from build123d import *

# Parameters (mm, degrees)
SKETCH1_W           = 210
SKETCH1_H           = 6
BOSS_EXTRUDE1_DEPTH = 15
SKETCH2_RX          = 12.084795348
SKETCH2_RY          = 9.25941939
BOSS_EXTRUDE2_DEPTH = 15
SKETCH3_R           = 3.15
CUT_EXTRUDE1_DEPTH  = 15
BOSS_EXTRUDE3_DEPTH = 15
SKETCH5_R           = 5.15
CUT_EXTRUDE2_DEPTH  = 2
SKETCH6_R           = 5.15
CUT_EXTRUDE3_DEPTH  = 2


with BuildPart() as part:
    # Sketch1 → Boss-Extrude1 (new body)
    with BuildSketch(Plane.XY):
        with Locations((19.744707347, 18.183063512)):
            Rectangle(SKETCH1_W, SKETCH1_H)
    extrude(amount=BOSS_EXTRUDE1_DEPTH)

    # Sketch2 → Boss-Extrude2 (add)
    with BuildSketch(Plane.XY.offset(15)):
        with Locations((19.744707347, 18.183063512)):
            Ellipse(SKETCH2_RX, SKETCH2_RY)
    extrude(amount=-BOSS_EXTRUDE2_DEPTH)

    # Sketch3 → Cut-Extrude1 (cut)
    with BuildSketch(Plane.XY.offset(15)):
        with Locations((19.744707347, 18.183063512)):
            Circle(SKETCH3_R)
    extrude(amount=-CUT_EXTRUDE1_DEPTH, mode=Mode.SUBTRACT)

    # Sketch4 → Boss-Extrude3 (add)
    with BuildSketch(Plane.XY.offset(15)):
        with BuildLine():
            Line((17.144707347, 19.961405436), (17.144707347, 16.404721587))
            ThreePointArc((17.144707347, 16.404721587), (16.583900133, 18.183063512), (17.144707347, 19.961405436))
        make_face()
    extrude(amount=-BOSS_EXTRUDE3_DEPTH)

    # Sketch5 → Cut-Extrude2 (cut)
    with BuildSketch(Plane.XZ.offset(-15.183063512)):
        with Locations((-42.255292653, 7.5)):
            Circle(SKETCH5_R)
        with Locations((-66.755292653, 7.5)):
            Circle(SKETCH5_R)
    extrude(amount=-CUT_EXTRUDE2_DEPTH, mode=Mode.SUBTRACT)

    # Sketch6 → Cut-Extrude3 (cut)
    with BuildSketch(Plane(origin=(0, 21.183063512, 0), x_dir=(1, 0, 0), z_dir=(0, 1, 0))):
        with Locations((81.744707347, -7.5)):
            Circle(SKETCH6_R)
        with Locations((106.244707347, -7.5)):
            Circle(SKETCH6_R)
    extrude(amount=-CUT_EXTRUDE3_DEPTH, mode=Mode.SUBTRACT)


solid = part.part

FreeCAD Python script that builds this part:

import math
import FreeCAD as App
import Part
import Sketcher
Q = App.Units.Quantity


def add_polygon(sketch, points):
    """Adds a closed chain of lines whose ends are joined by coincident constraints."""
    first, n = sketch.GeometryCount, len(points)
    for a, b in zip(points, points[1:] + points[:1]):
        sketch.addGeometry(Part.LineSegment(App.Vector(*a, 0), App.Vector(*b, 0)), False)
    for i in range(n):
        sketch.addConstraint(Sketcher.Constraint("Coincident", first + i, 2, first + (i + 1) % n, 1))

doc = App.newDocument("Part")
params = doc.addObject("Spreadsheet::Sheet", "Params")
for row, (alias, value) in enumerate([
    ("sketch1_width", "210 mm"),
    ("sketch1_height", "6 mm"),
    ("pad1_length", "15 mm"),
    ("pad2_length", "15 mm"),
    ("sketch3_diameter", "6.3 mm"),
    ("pocket1_length", "15 mm"),
    ("sketch4_radius", "3.1 mm"),
    ("pad3_length", "15 mm"),
    ("sketch5_diameter", "10.3 mm"),
    ("pocket2_length", "2 mm"),
    ("sketch6_diameter", "10.3 mm"),
    ("pocket3_length", "2 mm"),
], start=1):
    params.set(f"A{row}", alias)
    params.set(f"B{row}", "=" + value)
    params.setAlias(f"B{row}", alias)

body = doc.addObject("PartDesign::Body", "Body")

sketch1 = body.newObject("Sketcher::SketchObject", "Sketch")
sketch1.AttachmentSupport = (doc.getObject("XY_Plane"), [""])
sketch1.MapMode = "FlatFace"
add_polygon(sketch1, [(-85.255293, 21.183064), (-85.255293, 15.183064), (124.744707, 15.183064), (124.744707, 21.183064)])
sketch1.addConstraint([
    Sketcher.Constraint("Vertical", 0),
    Sketcher.Constraint("Horizontal", 1),
    Sketcher.Constraint("Vertical", 2),
    Sketcher.Constraint("Horizontal", 3),
    Sketcher.Constraint("DistanceX", 1, 1, 1, 2, Q("210 mm")),
    Sketcher.Constraint("DistanceY", 0, 2, 0, 1, Q("6 mm")),
    Sketcher.Constraint("DistanceX", 0, 2, -1, 1, Q("85.255293 mm")),
    Sketcher.Constraint("DistanceY", -1, 1, 0, 2, Q("15.183064 mm")),
])
sketch1.setExpression("Constraints[8]", "Params.sketch1_width")
sketch1.setExpression("Constraints[9]", "Params.sketch1_height")
pad1 = body.newObject("PartDesign::Pad", "Pad")
pad1.Profile = sketch1
pad1.setExpression("Length", "Params.pad1_length")

sketch2 = body.newObject("Sketcher::SketchObject", "Sketch001")
sketch2.AttachmentSupport = (doc.getObject("XY_Plane"), [""])
sketch2.MapMode = "FlatFace"
sketch2.AttachmentOffset = App.Placement(App.Vector(0, 0, 15), App.Rotation())
sketch2.addGeometry(Part.Ellipse(App.Vector(31.829503, 18.183064, 0), App.Vector(19.744707, 27.442483, 0), App.Vector(19.744707, 18.183064, 0)), False)
sketch2.addConstraint(Sketcher.Constraint("Block", 0))
pad2 = body.newObject("PartDesign::Pad", "Pad001")
pad2.Profile = sketch2
pad2.setExpression("Length", "Params.pad2_length")
pad2.Reversed = True

sketch3 = body.newObject("Sketcher::SketchObject", "Sketch002")
sketch3.AttachmentSupport = (doc.getObject("XY_Plane"), [""])
sketch3.MapMode = "FlatFace"
sketch3.AttachmentOffset = App.Placement(App.Vector(0, 0, 15), App.Rotation())
sketch3.addGeometry(Part.Circle(App.Vector(19.744707, 18.183064, 0), App.Vector(0, 0, 1), 3.15), False)
sketch3.addConstraint([
    Sketcher.Constraint("Diameter", 0, Q("6.3 mm")),
    Sketcher.Constraint("DistanceX", -1, 1, 0, 3, Q("19.744707 mm")),
    Sketcher.Constraint("DistanceY", -1, 1, 0, 3, Q("18.183064 mm")),
])
sketch3.setExpression("Constraints[0]", "Params.sketch3_diameter")
pocket1 = body.newObject("PartDesign::Pocket", "Pocket")
pocket1.Profile = sketch3
pocket1.setExpression("Length", "Params.pocket1_length")

sketch4 = body.newObject("Sketcher::SketchObject", "Sketch003")
sketch4.AttachmentSupport = (doc.getObject("XY_Plane"), [""])
sketch4.MapMode = "FlatFace"
sketch4.AttachmentOffset = App.Placement(App.Vector(0, 0, 15), App.Rotation())
sketch4.addGeometry([
    Part.LineSegment(App.Vector(17.144707, 16.404722, 0), App.Vector(17.144707, 19.961405, 0)),
    Part.ArcOfCircle(Part.Circle(App.Vector(19.6839, 18.183064, 0), App.Vector(0, 0, 1), 3.1), math.radians(144.994247), math.radians(215.005753)),
], False)
sketch4.addConstraint([
    Sketcher.Constraint("Coincident", 0, 1, 1, 2),
    Sketcher.Constraint("Coincident", 1, 1, 0, 2),
    Sketcher.Constraint("Vertical", 0),
    Sketcher.Constraint("Radius", 1, Q("3.1 mm")),
    Sketcher.Constraint("DistanceX", -1, 1, 1, 3, Q("19.6839 mm")),
    Sketcher.Constraint("DistanceY", 0, 1, 0, 2, Q("3.556684 mm")),
    Sketcher.Constraint("DistanceY", -1, 1, 0, 1, Q("16.404722 mm")),
])
sketch4.setExpression("Constraints[3]", "Params.sketch4_radius")
pad3 = body.newObject("PartDesign::Pad", "Pad002")
pad3.Profile = sketch4
pad3.setExpression("Length", "Params.pad3_length")
pad3.Reversed = True

sketch5 = body.newObject("Sketcher::SketchObject", "Sketch004")
sketch5.AttachmentSupport = (doc.getObject("XZ_Plane"), [""])
sketch5.MapMode = "FlatFace"
sketch5.AttachmentOffset = App.Placement(App.Vector(0, 0, -15.183064), App.Rotation())
sketch5.addGeometry([
    Part.Circle(App.Vector(-42.255293, 7.5, 0), App.Vector(0, 0, 1), 5.15),
    Part.Circle(App.Vector(-66.755293, 7.5, 0), App.Vector(0, 0, 1), 5.15),
], False)
sketch5.addConstraint([
    Sketcher.Constraint("Equal", 0, 1),
    Sketcher.Constraint("Horizontal", 0, 3, 1, 3),
    Sketcher.Constraint("Diameter", 0, Q("10.3 mm")),
    Sketcher.Constraint("DistanceY", -1, 1, 0, 3, Q("7.5 mm")),
    Sketcher.Constraint("DistanceX", 1, 3, 0, 3, Q("24.5 mm")),
    Sketcher.Constraint("DistanceX", 0, 3, -1, 1, Q("42.255293 mm")),
])
sketch5.setExpression("Constraints[2]", "Params.sketch5_diameter")
pocket2 = body.newObject("PartDesign::Pocket", "Pocket001")
pocket2.Profile = sketch5
pocket2.setExpression("Length", "Params.pocket2_length")

sketch6 = body.newObject("Sketcher::SketchObject", "Sketch005")
sketch6.AttachmentSupport = (doc.getObject("XZ_Plane"), [""])
sketch6.MapMode = "FlatFace"
sketch6.AttachmentOffset = App.Placement(App.Vector(0, 0, -21.183064), App.Rotation())
sketch6.addGeometry([
    Part.Circle(App.Vector(81.744707, 7.5, 0), App.Vector(0, 0, 1), 5.15),
    Part.Circle(App.Vector(106.244707, 7.5, 0), App.Vector(0, 0, 1), 5.15),
], False)
sketch6.addConstraint([
    Sketcher.Constraint("Equal", 0, 1),
    Sketcher.Constraint("Horizontal", 0, 3, 1, 3),
    Sketcher.Constraint("Diameter", 0, Q("10.3 mm")),
    Sketcher.Constraint("DistanceY", -1, 1, 0, 3, Q("7.5 mm")),
    Sketcher.Constraint("DistanceX", 0, 3, 1, 3, Q("24.5 mm")),
    Sketcher.Constraint("DistanceX", -1, 1, 0, 3, Q("81.744707 mm")),
])
sketch6.setExpression("Constraints[2]", "Params.sketch6_diameter")
pocket3 = body.newObject("PartDesign::Pocket", "Pocket002")
pocket3.Profile = sketch6
pocket3.setExpression("Length", "Params.pocket3_length")
pocket3.Reversed = True

doc.recompute()
